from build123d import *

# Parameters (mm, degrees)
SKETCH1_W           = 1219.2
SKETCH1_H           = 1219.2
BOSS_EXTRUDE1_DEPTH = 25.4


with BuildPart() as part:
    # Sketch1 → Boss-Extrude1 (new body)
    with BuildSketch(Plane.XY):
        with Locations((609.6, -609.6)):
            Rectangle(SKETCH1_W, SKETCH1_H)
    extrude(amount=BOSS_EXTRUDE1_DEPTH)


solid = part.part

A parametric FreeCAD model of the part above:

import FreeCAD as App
import Part
import Sketcher

V = App.Vector
Q = App.Units.Quantity

doc = App.newDocument("Part")
body = doc.addObject("PartDesign::Body", "Body")

sketch1 = body.newObject("Sketcher::SketchObject", "Sketch")
sketch1.AttachmentSupport = (doc.getObject("XY_Plane"), [""])
sketch1.MapMode = "FlatFace"
sketch1.addGeometry(Part.LineSegment(V(0, 0, 0), V(0, -1219, 0)), False)
sketch1.addGeometry(Part.LineSegment(V(0, -1219, 0), V(1219, -1219, 0)), False)
sketch1.addGeometry(Part.LineSegment(V(1219, -1219, 0), V(1219, 0, 0)), False)
sketch1.addGeometry(Part.LineSegment(V(1219, 0, 0), V(0, 0, 0)), False)
sketch1.addConstraint(Sketcher.Constraint("Coincident", 0, 2, 1, 1))
sketch1.addConstraint(Sketcher.Constraint("Coincident", 1, 2, 2, 1))
sketch1.addConstraint(Sketcher.Constraint("Coincident", 2, 2, 3, 1))
sketch1.addConstraint(Sketcher.Constraint("Coincident", 3, 2, 0, 1))
sketch1.addConstraint(Sketcher.Constraint("Vertical", 0))
sketch1.addConstraint(Sketcher.Constraint("Horizontal", 1))
sketch1.addConstraint(Sketcher.Constraint("Vertical", 2))
sketch1.addConstraint(Sketcher.Constraint("Horizontal", 3))
sketch1.addConstraint(Sketcher.Constraint("Coincident", 3, 2, -1, 1))
sketch1.addConstraint(Sketcher.Constraint("Equal", 3, 0))
sketch1.addConstraint(Sketcher.Constraint("DistanceX", 1, 1, 1, 2, Q("48 in")))
pad1 = body.newObject("PartDesign::Pad", "Pad")
pad1.Profile = sketch1
pad1.Length = Q("1 in")

doc.recompute()
